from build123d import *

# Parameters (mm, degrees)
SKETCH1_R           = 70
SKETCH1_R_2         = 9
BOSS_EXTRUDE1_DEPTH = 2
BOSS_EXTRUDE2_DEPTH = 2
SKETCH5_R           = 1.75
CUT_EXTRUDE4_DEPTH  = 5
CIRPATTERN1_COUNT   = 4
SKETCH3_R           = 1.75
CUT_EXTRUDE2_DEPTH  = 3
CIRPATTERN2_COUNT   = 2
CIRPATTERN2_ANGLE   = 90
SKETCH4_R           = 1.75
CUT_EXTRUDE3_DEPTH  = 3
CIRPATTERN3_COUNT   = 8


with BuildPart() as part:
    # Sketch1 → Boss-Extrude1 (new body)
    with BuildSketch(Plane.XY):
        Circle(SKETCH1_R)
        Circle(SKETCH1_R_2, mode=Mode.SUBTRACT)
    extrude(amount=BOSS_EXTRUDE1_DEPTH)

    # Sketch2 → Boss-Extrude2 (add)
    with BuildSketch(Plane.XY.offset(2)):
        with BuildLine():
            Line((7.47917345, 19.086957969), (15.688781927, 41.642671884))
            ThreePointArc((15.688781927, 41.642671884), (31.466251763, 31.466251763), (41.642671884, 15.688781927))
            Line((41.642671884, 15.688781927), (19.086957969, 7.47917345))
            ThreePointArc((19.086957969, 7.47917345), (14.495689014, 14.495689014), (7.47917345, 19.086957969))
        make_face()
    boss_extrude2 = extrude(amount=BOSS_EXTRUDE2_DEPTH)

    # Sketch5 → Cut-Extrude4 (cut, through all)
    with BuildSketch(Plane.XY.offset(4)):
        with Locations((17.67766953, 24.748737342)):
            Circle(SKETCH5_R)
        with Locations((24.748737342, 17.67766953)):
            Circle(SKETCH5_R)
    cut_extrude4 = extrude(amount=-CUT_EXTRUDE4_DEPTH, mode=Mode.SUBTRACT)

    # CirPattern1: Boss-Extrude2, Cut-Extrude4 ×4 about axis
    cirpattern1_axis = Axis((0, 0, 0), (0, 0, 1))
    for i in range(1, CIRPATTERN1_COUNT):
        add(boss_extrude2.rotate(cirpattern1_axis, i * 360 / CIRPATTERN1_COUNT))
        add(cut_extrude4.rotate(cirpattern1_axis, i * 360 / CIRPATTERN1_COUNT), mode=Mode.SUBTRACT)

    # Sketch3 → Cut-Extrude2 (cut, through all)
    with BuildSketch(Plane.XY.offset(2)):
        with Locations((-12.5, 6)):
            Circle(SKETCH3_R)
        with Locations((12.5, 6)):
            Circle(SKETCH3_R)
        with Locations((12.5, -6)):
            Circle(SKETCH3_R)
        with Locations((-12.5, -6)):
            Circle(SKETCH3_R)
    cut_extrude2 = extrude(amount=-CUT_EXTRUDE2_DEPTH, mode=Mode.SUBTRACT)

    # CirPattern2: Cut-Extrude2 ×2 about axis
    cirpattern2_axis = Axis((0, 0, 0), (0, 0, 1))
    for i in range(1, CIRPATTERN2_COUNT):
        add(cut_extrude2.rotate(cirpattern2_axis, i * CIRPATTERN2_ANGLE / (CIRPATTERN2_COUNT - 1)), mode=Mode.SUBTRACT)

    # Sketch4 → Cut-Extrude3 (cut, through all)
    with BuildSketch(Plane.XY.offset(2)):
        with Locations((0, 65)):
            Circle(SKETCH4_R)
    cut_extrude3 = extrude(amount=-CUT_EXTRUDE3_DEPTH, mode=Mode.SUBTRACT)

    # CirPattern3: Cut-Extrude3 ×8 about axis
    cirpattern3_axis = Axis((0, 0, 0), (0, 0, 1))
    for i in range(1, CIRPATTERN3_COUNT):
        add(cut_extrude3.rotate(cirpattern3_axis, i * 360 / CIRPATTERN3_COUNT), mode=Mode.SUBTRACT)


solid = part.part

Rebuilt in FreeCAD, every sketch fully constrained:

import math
import FreeCAD as App
import Part
import Sketcher

V = App.Vector
Q = App.Units.Quantity

doc = App.newDocument("Part")
body = doc.addObject("PartDesign::Body", "Body")

sketch1 = body.newObject("Sketcher::SketchObject", "Sketch")
sketch1.AttachmentSupport = (doc.getObject("XY_Plane"), [""])
sketch1.MapMode = "FlatFace"
sketch1.addGeometry([
    Part.Circle(V(0, 0, 0), V(0, 0, 1), 70),
    Part.Circle(V(0, 0, 0), V(0, 0, 1), 9),
], False)
sketch1.addConstraint([
    Sketcher.Constraint("Coincident", 0, 3, -1, 1),
    Sketcher.Constraint("Coincident", 1, 3, -1, 1),
    Sketcher.Constraint("Diameter", 0, Q("140 mm")),
    Sketcher.Constraint("Diameter", 1, Q("18 mm")),
])
pad1 = body.newObject("PartDesign::Pad", "Pad")
pad1.Profile = sketch1
pad1.Length = 2

sketch2 = body.newObject("Sketcher::SketchObject", "Sketch001")
sketch2.AttachmentSupport = (doc.getObject("XY_Plane"), [""])
sketch2.MapMode = "FlatFace"
sketch2.AttachmentOffset = App.Placement(V(0, 0, 2), App.Rotation())
sketch2.addGeometry([
    Part.LineSegment(V(15.688782, 41.642672, 0), V(7.479173, 19.086958, 0)),
    Part.ArcOfCircle(Part.Circle(V(0, 0, 0), V(0, 0, 1), 20.5), math.radians(21.397597), math.radians(68.602403)),
    Part.LineSegment(V(19.086958, 7.479173, 0), V(41.642672, 15.688782, 0)),
    Part.ArcOfCircle(Part.Circle(V(0, 0, 0), V(0, 0, 1), 44.5), math.radians(20.643786), math.radians(69.356214)),
], False)
sketch2.addConstraint([
    Sketcher.Constraint("Coincident", 0, 2, 1, 2),
    Sketcher.Constraint("Coincident", 1, 1, 2, 1),
    Sketcher.Constraint("Coincident", 2, 2, 3, 1),
    Sketcher.Constraint("Coincident", 3, 2, 0, 1),
    Sketcher.Constraint("Coincident", 1, 3, -1, 1),
    Sketcher.Constraint("Coincident", 3, 3, -1, 1),
    Sketcher.Constraint("Equal", 0, 2),
    Sketcher.Constraint("Radius", 1, Q("20.5 mm")),
    Sketcher.Constraint("Radius", 3, Q("44.5 mm")),
    Sketcher.Constraint("Angle", 0, Q("-110 deg")),
    Sketcher.Constraint("Angle", 2, Q("20 deg")),
    Sketcher.Constraint("DistanceX", 0, 2, 2, 2, Q("34.163498 mm")),
])
pad2 = body.newObject("PartDesign::Pad", "Pad001")
pad2.Profile = sketch2
pad2.Length = 2

sketch3 = body.newObject("Sketcher::SketchObject", "Sketch002")
sketch3.AttachmentSupport = (doc.getObject("XY_Plane"), [""])
sketch3.MapMode = "FlatFace"
sketch3.AttachmentOffset = App.Placement(V(0, 0, 4), App.Rotation())
sketch3.addGeometry([
    Part.Circle(V(17.7, 24.7, 0), V(0, 0, 1), 1.8),
    Part.Circle(V(24.7, 17.7, 0), V(0, 0, 1), 1.8),
], False)
sketch3.addConstraint([
    Sketcher.Constraint("Equal", 0, 1),
    Sketcher.Constraint("Diameter", 0, Q("3.5 mm")),
    Sketcher.Constraint("DistanceX", -1, 1, 0, 3, Q("17.67767 mm")),
    Sketcher.Constraint("DistanceY", -1, 1, 1, 3, Q("17.67767 mm")),
    Sketcher.Constraint("DistanceY", -1, 1, 0, 3, Q("24.748737 mm")),
    Sketcher.Constraint("DistanceX", -1, 1, 1, 3, Q("24.748737 mm")),
])
pocket1 = body.newObject("PartDesign::Pocket", "Pocket")
pocket1.Profile = sketch3
pocket1.Type = "ThroughAll"
doc.recompute()

polarpattern = body.newObject("PartDesign::PolarPattern", "PolarPattern")
polarpattern.Originals = [pad2, pocket1]
polarpattern.Axis = (doc.getObject("Z_Axis"), [""])
polarpattern.Angle = 360
polarpattern.Occurrences = 4
body.Tip = polarpattern

sketch4 = body.newObject("Sketcher::SketchObject", "Sketch003")
sketch4.AttachmentSupport = (doc.getObject("XY_Plane"), [""])
sketch4.MapMode = "FlatFace"
sketch4.AttachmentOffset = App.Placement(V(0, 0, 2), App.Rotation())
sketch4.addGeometry([
    Part.Circle(V(-12.5, 6, 0), V(0, 0, 1), 1.8),
    Part.Circle(V(12.5, 6, 0), V(0, 0, 1), 1.8),
    Part.Circle(V(12.5, -6, 0), V(0, 0, 1), 1.8),
    Part.Circle(V(-12.5, -6, 0), V(0, 0, 1), 1.8),
], False)
sketch4.addConstraint([
    Sketcher.Constraint("Equal", 0, 1),
    Sketcher.Constraint("Equal", 1, 2),
    Sketcher.Constraint("Equal", 2, 3),
    Sketcher.Constraint("Symmetric", 0, 3, 2, 3, -1, 1),
    Sketcher.Constraint("Symmetric", 1, 3, 3, 3, -1, 1),
    Sketcher.Constraint("Symmetric", 0, 3, 1, 3, -2),
    Sketcher.Constraint("Diameter", 0, Q("3.5 mm")),
    Sketcher.Constraint("DistanceY", -1, 1, 0, 3, Q("6 mm")),
    Sketcher.Constraint("DistanceX", 0, 3, 1, 3, Q("25 mm")),
])
pocket2 = body.newObject("PartDesign::Pocket", "Pocket001")
pocket2.Profile = sketch4
pocket2.Type = "ThroughAll"
doc.recompute()

polarpattern2 = body.newObject("PartDesign::PolarPattern", "PolarPattern001")
polarpattern2.Originals = [pocket2]
polarpattern2.Axis = (doc.getObject("Z_Axis"), [""])
polarpattern2.Angle = 90
polarpattern2.Occurrences = 2
body.Tip = polarpattern2

sketch5 = body.newObject("Sketcher::SketchObject", "Sketch004")
sketch5.AttachmentSupport = (doc.getObject("XY_Plane"), [""])
sketch5.MapMode = "FlatFace"
sketch5.AttachmentOffset = App.Placement(V(0, 0, 2), App.Rotation())
sketch5.addGeometry(Part.Circle(V(0, 65, 0), V(0, 0, 1), 1.8), False)
sketch5.addConstraint([
    Sketcher.Constraint("PointOnObject", 0, 3, -2),
    Sketcher.Constraint("Diameter", 0, Q("3.5 mm")),
    Sketcher.Constraint("DistanceY", -1, 1, 0, 3, Q("65 mm")),
])
pocket3 = body.newObject("PartDesign::Pocket", "Pocket002")
pocket3.Profile = sketch5
pocket3.Type = "ThroughAll"
doc.recompute()

polarpattern3 = body.newObject("PartDesign::PolarPattern", "PolarPattern002")
polarpattern3.Originals = [pocket3]
polarpattern3.Axis = (doc.getObject("Z_Axis"), [""])
polarpattern3.Angle = 360
polarpattern3.Occurrences = 8
body.Tip = polarpattern3

doc.recompute()
